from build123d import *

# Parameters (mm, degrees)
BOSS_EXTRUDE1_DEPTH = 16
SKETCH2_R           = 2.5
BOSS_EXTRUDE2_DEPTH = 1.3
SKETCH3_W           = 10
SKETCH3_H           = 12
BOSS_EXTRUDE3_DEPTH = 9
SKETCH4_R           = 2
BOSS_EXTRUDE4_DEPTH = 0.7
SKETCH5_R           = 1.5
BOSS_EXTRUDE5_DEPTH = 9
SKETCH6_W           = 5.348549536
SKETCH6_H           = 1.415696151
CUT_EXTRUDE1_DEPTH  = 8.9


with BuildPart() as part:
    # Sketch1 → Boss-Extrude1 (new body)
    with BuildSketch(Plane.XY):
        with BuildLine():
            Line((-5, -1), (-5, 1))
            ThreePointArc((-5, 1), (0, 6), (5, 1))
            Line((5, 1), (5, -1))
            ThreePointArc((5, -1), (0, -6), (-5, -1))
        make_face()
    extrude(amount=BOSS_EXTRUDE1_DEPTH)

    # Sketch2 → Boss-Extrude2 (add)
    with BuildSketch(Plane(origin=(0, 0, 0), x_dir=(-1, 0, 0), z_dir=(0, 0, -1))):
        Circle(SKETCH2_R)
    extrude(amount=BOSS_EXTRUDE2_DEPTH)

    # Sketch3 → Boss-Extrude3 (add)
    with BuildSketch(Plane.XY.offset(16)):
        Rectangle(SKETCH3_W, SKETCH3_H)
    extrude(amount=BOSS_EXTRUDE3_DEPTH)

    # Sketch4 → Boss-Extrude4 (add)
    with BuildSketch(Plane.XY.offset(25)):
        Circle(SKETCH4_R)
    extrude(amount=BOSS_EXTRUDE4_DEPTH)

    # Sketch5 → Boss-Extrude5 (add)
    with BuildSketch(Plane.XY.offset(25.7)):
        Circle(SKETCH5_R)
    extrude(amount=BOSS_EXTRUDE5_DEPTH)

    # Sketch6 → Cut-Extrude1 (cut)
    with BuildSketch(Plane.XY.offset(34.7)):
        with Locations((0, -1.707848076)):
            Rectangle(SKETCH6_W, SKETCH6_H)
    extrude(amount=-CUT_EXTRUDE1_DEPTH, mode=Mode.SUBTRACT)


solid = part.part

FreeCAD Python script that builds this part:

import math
import FreeCAD as App
import Part
import Sketcher
from FreeCAD import Vector

doc = App.newDocument("Part")
body = doc.addObject("PartDesign::Body", "Body")

# Sketch on XY plane
sketch1 = body.newObject("Sketcher::SketchObject", "Sketch")
sketch1.AttachmentSupport = (doc.getObject("XY_Plane"), [""])
sketch1.MapMode = "FlatFace"
sketch1.addGeometry(Part.LineSegment(Vector(-5, 1, 0), Vector(-5, -1, 0)), False)
sketch1.addGeometry(Part.ArcOfCircle(Part.Circle(Vector(0, -1, 0), Vector(0, 0, 1), 5), math.radians(180), math.radians(360)), False)
sketch1.addGeometry(Part.LineSegment(Vector(5, -1, 0), Vector(5, 1, 0)), False)
sketch1.addGeometry(Part.ArcOfCircle(Part.Circle(Vector(0, 1, 0), Vector(0, 0, 1), 5), math.radians(0), math.radians(180)), False)
sketch1.addConstraint(Sketcher.Constraint("Tangent", 0, 2, 1, 1))
sketch1.addConstraint(Sketcher.Constraint("Tangent", 1, 2, 2, 1))
sketch1.addConstraint(Sketcher.Constraint("Tangent", 2, 2, 3, 1))
sketch1.addConstraint(Sketcher.Constraint("Tangent", 3, 2, 0, 1))
sketch1.addConstraint(Sketcher.Constraint("Vertical", 0))
sketch1.addConstraint(Sketcher.Constraint("Vertical", 2))
sketch1.addConstraint(Sketcher.Constraint("Symmetric", 1, 3, 3, 3, -1, 1))
sketch1.addConstraint(Sketcher.Constraint("Radius", 1, 5.0))
sketch1.addConstraint(Sketcher.Constraint("DistanceY", 0, 2, 0, 1, 2.0))
pad1 = body.newObject("PartDesign::Pad", "Pad")
pad1.Profile = sketch1
pad1.Length = 16

# Sketch on XY plane
sketch2 = body.newObject("Sketcher::SketchObject", "Sketch001")
sketch2.AttachmentSupport = (doc.getObject("XY_Plane"), [""])
sketch2.MapMode = "FlatFace"
sketch2.addGeometry(Part.Circle(Vector(0, 0, 0), Vector(0, 0, 1), 2.5), False)
sketch2.addConstraint(Sketcher.Constraint("Coincident", 0, 3, -1, 1))
sketch2.addConstraint(Sketcher.Constraint("Diameter", 0, 5.0))
pad2 = body.newObject("PartDesign::Pad", "Pad001")
pad2.Profile = sketch2
pad2.Length = 1.3
pad2.Reversed = True

# Sketch on XY plane
sketch3 = body.newObject("Sketcher::SketchObject", "Sketch002")
sketch3.AttachmentSupport = (doc.getObject("XY_Plane"), [""])
sketch3.MapMode = "FlatFace"
sketch3.AttachmentOffset = App.Placement(Vector(0, 0, 16), App.Rotation())
sketch3.addGeometry(Part.LineSegment(Vector(-5, 6, 0), Vector(-5, -6, 0)), False)
sketch3.addGeometry(Part.LineSegment(Vector(-5, -6, 0), Vector(5, -6, 0)), False)
sketch3.addGeometry(Part.LineSegment(Vector(5, -6, 0), Vector(5, 6, 0)), False)
sketch3.addGeometry(Part.LineSegment(Vector(5, 6, 0), Vector(-5, 6, 0)), False)
sketch3.addConstraint(Sketcher.Constraint("Coincident", 0, 2, 1, 1))
sketch3.addConstraint(Sketcher.Constraint("Coincident", 1, 2, 2, 1))
sketch3.addConstraint(Sketcher.Constraint("Coincident", 2, 2, 3, 1))
sketch3.addConstraint(Sketcher.Constraint("Coincident", 3, 2, 0, 1))
sketch3.addConstraint(Sketcher.Constraint("Vertical", 0))
sketch3.addConstraint(Sketcher.Constraint("Horizontal", 1))
sketch3.addConstraint(Sketcher.Constraint("Vertical", 2))
sketch3.addConstraint(Sketcher.Constraint("Horizontal", 3))
sketch3.addConstraint(Sketcher.Constraint("Symmetric", 0, 2, 2, 2, -1, 1))
sketch3.addConstraint(Sketcher.Constraint("DistanceX", 1, 1, 1, 2, 10.0))
sketch3.addConstraint(Sketcher.Constraint("DistanceY", 0, 2, 0, 1, 12.0))
pad3 = body.newObject("PartDesign::Pad", "Pad002")
pad3.Profile = sketch3
pad3.Length = 9

# Sketch on XY plane
sketch4 = body.newObject("Sketcher::SketchObject", "Sketch003")
sketch4.AttachmentSupport = (doc.getObject("XY_Plane"), [""])
sketch4.MapMode = "FlatFace"
sketch4.AttachmentOffset = App.Placement(Vector(0, 0, 25), App.Rotation())
sketch4.addGeometry(Part.Circle(Vector(0, 0, 0), Vector(0, 0, 1), 2), False)
sketch4.addConstraint(Sketcher.Constraint("Coincident", 0, 3, -1, 1))
sketch4.addConstraint(Sketcher.Constraint("Diameter", 0, 4.0))
pad4 = body.newObject("PartDesign::Pad", "Pad003")
pad4.Profile = sketch4
pad4.Length = 0.7

# Sketch on XY plane
sketch5 = body.newObject("Sketcher::SketchObject", "Sketch004")
sketch5.AttachmentSupport = (doc.getObject("XY_Plane"), [""])
sketch5.MapMode = "FlatFace"
sketch5.AttachmentOffset = App.Placement(Vector(0, 0, 25.7), App.Rotation())
sketch5.addGeometry(Part.Circle(Vector(0, 0, 0), Vector(0, 0, 1), 1.5), False)
sketch5.addConstraint(Sketcher.Constraint("Coincident", 0, 3, -1, 1))
sketch5.addConstraint(Sketcher.Constraint("Diameter", 0, 3.0))
pad5 = body.newObject("PartDesign::Pad", "Pad004")
pad5.Profile = sketch5
pad5.Length = 9

# Sketch on XY plane
sketch6 = body.newObject("Sketcher::SketchObject", "Sketch005")
sketch6.AttachmentSupport = (doc.getObject("XY_Plane"), [""])
sketch6.MapMode = "FlatFace"
sketch6.AttachmentOffset = App.Placement(Vector(0, 0, 34.7), App.Rotation())
sketch6.addGeometry(Part.LineSegment(Vector(-2.7, -1, 0), Vector(-2.7, -2.4, 0)), False)
sketch6.addGeometry(Part.LineSegment(Vector(-2.7, -2.4, 0), Vector(2.7, -2.4, 0)), False)
sketch6.addGeometry(Part.LineSegment(Vector(2.7, -2.4, 0), Vector(2.7, -1, 0)), False)
sketch6.addGeometry(Part.LineSegment(Vector(2.7, -1, 0), Vector(-2.7, -1, 0)), False)
sketch6.addConstraint(Sketcher.Constraint("Coincident", 0, 2, 1, 1))
sketch6.addConstraint(Sketcher.Constraint("Coincident", 1, 2, 2, 1))
sketch6.addConstraint(Sketcher.Constraint("Coincident", 2, 2, 3, 1))
sketch6.addConstraint(Sketcher.Constraint("Coincident", 3, 2, 0, 1))
sketch6.addConstraint(Sketcher.Constraint("Vertical", 0))
sketch6.addConstraint(Sketcher.Constraint("Horizontal", 1))
sketch6.addConstraint(Sketcher.Constraint("Vertical", 2))
sketch6.addConstraint(Sketcher.Constraint("Horizontal", 3))
sketch6.addConstraint(Sketcher.Constraint("DistanceY", 2, 2, -1, 1, 1.0))
sketch6.addConstraint(Sketcher.Constraint("DistanceX", 1, 1, 1, 2, 5.34855))
sketch6.addConstraint(Sketcher.Constraint("DistanceY", 0, 2, 0, 1, 1.415696))
sketch6.addConstraint(Sketcher.Constraint("DistanceX", 0, 2, -1, 1, 2.674275))
pocket1 = body.newObject("PartDesign::Pocket", "Pocket")
pocket1.Profile = sketch6
pocket1.Length = 8.9

doc.recompute()
